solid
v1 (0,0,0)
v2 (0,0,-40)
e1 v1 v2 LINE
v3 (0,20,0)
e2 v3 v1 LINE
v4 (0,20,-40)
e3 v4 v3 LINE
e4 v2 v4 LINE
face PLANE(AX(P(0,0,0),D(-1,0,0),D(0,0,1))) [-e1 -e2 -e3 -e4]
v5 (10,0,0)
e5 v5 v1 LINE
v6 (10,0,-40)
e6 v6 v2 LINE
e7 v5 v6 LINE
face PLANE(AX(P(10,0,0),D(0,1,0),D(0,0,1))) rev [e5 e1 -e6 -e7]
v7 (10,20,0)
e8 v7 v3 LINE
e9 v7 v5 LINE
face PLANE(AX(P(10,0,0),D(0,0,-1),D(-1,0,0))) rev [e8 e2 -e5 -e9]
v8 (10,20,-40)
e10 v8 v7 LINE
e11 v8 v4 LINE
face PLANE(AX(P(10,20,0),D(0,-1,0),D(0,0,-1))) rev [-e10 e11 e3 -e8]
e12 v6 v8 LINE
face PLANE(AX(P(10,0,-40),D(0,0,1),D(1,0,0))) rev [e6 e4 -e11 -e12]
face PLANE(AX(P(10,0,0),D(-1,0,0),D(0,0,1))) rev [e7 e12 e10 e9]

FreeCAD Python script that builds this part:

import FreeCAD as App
import Part
import Sketcher
from FreeCAD import Vector

doc = App.newDocument("Part")
body = doc.addObject("PartDesign::Body", "Body")

sketch1 = body.newObject("Sketcher::SketchObject", "Sketch")
sketch1.AttachmentSupport = (doc.getObject("YZ_Plane"), [""])
sketch1.MapMode = "FlatFace"
sketch1.addGeometry(Part.LineSegment(Vector(20, 0, 0), Vector(0, 0, 0)), False)
sketch1.addGeometry(Part.LineSegment(Vector(0, 0, 0), Vector(0, -40, 0)), False)
sketch1.addGeometry(Part.LineSegment(Vector(0, -40, 0), Vector(20, -40, 0)), False)
sketch1.addGeometry(Part.LineSegment(Vector(20, -40, 0), Vector(20, 0, 0)), False)
sketch1.addConstraint(Sketcher.Constraint("Coincident", 0, 2, 1, 1))
sketch1.addConstraint(Sketcher.Constraint("Coincident", 1, 2, 2, 1))
sketch1.addConstraint(Sketcher.Constraint("Coincident", 2, 2, 3, 1))
sketch1.addConstraint(Sketcher.Constraint("Coincident", 3, 2, 0, 1))
sketch1.addConstraint(Sketcher.Constraint("Horizontal", 0))
sketch1.addConstraint(Sketcher.Constraint("Vertical", 1))
sketch1.addConstraint(Sketcher.Constraint("Horizontal", 2))
sketch1.addConstraint(Sketcher.Constraint("Vertical", 3))
sketch1.addConstraint(Sketcher.Constraint("Coincident", 0, 2, -1, 1))
sketch1.addConstraint(Sketcher.Constraint("DistanceX", 0, 2, 0, 1, 20.0))
sketch1.addConstraint(Sketcher.Constraint("DistanceY", 1, 2, 1, 1, 40.0))
pad1 = body.newObject("PartDesign::Pad", "Pad")
pad1.Profile = sketch1
pad1.Length = 10

doc.recompute()
